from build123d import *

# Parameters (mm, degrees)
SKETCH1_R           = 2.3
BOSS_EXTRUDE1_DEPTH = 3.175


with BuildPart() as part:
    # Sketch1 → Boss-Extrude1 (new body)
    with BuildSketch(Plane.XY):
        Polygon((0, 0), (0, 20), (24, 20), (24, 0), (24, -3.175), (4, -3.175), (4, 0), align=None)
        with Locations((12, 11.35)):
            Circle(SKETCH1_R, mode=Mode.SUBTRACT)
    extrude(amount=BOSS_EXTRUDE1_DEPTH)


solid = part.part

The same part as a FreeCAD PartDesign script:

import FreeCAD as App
import Part
import Sketcher

V = App.Vector
Q = App.Units.Quantity


def add_polygon(sketch, points):
    """Adds a closed chain of lines whose ends are joined by coincident constraints."""
    first, n = sketch.GeometryCount, len(points)
    for a, b in zip(points, points[1:] + points[:1]):
        sketch.addGeometry(Part.LineSegment(App.Vector(*a, 0), App.Vector(*b, 0)), False)
    for i in range(n):
        sketch.addConstraint(Sketcher.Constraint("Coincident", first + i, 2, first + (i + 1) % n, 1))

doc = App.newDocument("Part")
body = doc.addObject("PartDesign::Body", "Body")

# Sketch on XY plane
sketch1 = body.newObject("Sketcher::SketchObject", "Sketch")
sketch1.AttachmentSupport = (doc.getObject("XY_Plane"), [""])
sketch1.MapMode = "FlatFace"
add_polygon(sketch1, [(0, 20), (0, 0), (4, 0), (4, -3.2), (24, -3.2), (24, 20)])  # lines 0-5
sketch1.addGeometry(Part.Circle(V(12, 11.3, 0), V(0, 0, 1), 2.3), False)  # 6
sketch1.addConstraint([
    Sketcher.Constraint("Vertical", 0),
    Sketcher.Constraint("Horizontal", 1),
    Sketcher.Constraint("Vertical", 2),
    Sketcher.Constraint("Horizontal", 3),
    Sketcher.Constraint("Vertical", 4),
    Sketcher.Constraint("Horizontal", 5),
    Sketcher.Constraint("Coincident", 0, 2, -1, 1),
    Sketcher.Constraint("Equal", 3, 0),
    Sketcher.Constraint("Diameter", 6, Q("4.6 mm")),
    Sketcher.Constraint("DistanceX", 1, 1, 1, 2, Q("4 mm")),
    Sketcher.Constraint("DistanceX", 3, 1, 3, 2, Q("20 mm")),
    Sketcher.Constraint("DistanceX", -1, 1, 6, 3, Q("12 mm")),
    Sketcher.Constraint("DistanceY", 2, 2, 2, 1, Q("3.175 mm")),
    Sketcher.Constraint("DistanceY", -1, 1, 6, 3, Q("11.35 mm")),
])
pad1 = body.newObject("PartDesign::Pad", "Pad")
pad1.Profile = sketch1
pad1.Length = 3.175

doc.recompute()
